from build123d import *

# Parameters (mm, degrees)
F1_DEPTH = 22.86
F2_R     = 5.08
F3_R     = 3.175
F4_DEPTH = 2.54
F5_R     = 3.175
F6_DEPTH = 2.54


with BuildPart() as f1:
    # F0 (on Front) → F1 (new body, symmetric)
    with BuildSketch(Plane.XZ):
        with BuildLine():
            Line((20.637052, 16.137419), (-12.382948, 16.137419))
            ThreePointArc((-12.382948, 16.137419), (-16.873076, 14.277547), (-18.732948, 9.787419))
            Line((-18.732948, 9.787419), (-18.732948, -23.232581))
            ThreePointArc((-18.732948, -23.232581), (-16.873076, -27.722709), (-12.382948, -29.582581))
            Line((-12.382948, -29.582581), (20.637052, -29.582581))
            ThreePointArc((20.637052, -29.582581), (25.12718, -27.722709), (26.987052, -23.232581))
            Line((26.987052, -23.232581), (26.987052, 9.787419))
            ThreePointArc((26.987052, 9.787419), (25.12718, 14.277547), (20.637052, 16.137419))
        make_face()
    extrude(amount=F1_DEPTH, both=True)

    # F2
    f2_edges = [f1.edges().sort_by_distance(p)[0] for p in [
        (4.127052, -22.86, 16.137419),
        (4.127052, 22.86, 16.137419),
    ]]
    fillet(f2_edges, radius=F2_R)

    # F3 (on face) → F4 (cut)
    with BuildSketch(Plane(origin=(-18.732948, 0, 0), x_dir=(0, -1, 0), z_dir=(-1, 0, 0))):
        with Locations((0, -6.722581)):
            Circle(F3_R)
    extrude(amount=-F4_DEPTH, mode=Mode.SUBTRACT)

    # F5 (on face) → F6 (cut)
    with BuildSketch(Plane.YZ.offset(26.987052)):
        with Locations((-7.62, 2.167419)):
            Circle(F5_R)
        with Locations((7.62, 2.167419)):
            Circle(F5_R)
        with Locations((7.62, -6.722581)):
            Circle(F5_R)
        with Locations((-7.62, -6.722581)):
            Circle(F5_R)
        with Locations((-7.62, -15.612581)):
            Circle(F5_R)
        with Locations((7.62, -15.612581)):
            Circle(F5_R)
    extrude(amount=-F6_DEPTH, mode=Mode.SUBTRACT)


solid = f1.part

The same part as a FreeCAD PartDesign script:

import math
import FreeCAD as App
import Part
import Sketcher
Q = App.Units.Quantity


def edges_at(feature, points):
    """Names of the edges that pass closest to the given points."""
    edges = feature.Shape.Edges
    near = lambda p: min(range(len(edges)), key=lambda i: edges[i].distToShape(Part.Vertex(*p))[0])
    return sorted({f"Edge{near(p) + 1}" for p in points})

doc = App.newDocument("Part")
body = doc.addObject("PartDesign::Body", "Body")

# Sketch on XZ plane
sketch1 = body.newObject("Sketcher::SketchObject", "Sketch")
sketch1.AttachmentSupport = (doc.getObject("XZ_Plane"), [""])
sketch1.MapMode = "FlatFace"
sketch1.addGeometry(Part.LineSegment(App.Vector(21, 16, 0), App.Vector(-12, 16, 0)), False)
sketch1.addGeometry(Part.ArcOfCircle(Part.Circle(App.Vector(-12, 10, 0), App.Vector(0, 0, 1), 6), math.radians(90), math.radians(180)), False)
sketch1.addGeometry(Part.LineSegment(App.Vector(-19, 10, 0), App.Vector(-19, -23, 0)), False)
sketch1.addGeometry(Part.ArcOfCircle(Part.Circle(App.Vector(-12, -23, 0), App.Vector(0, 0, 1), 6), math.radians(-180), math.radians(-90)), False)
sketch1.addGeometry(Part.LineSegment(App.Vector(-12, -30, 0), App.Vector(21, -30, 0)), False)
sketch1.addGeometry(Part.ArcOfCircle(Part.Circle(App.Vector(21, -23, 0), App.Vector(0, 0, 1), 6), math.radians(-90), math.radians(0)), False)
sketch1.addGeometry(Part.LineSegment(App.Vector(27, -23, 0), App.Vector(27, 10, 0)), False)
sketch1.addGeometry(Part.ArcOfCircle(Part.Circle(App.Vector(21, 10, 0), App.Vector(0, 0, 1), 6), math.radians(0), math.radians(90)), False)
sketch1.addConstraint(Sketcher.Constraint("Tangent", 0, 2, 1, 1))
sketch1.addConstraint(Sketcher.Constraint("Tangent", 1, 2, 2, 1))
sketch1.addConstraint(Sketcher.Constraint("Tangent", 2, 2, 3, 1))
sketch1.addConstraint(Sketcher.Constraint("Tangent", 3, 2, 4, 1))
sketch1.addConstraint(Sketcher.Constraint("Tangent", 4, 2, 5, 1))
sketch1.addConstraint(Sketcher.Constraint("Tangent", 5, 2, 6, 1))
sketch1.addConstraint(Sketcher.Constraint("Tangent", 6, 2, 7, 1))
sketch1.addConstraint(Sketcher.Constraint("Tangent", 7, 2, 0, 1))
sketch1.addConstraint(Sketcher.Constraint("Horizontal", 0))
sketch1.addConstraint(Sketcher.Constraint("Vertical", 2))
sketch1.addConstraint(Sketcher.Constraint("Horizontal", 4))
sketch1.addConstraint(Sketcher.Constraint("Vertical", 6))
sketch1.addConstraint(Sketcher.Constraint("Equal", 1, 3))
sketch1.addConstraint(Sketcher.Constraint("Equal", 3, 5))
sketch1.addConstraint(Sketcher.Constraint("Equal", 5, 7))
sketch1.addConstraint(Sketcher.Constraint("Equal", 4, 2))
sketch1.addConstraint(Sketcher.Constraint("Radius", 1, Q("0.25 in")))
sketch1.addConstraint(Sketcher.Constraint("DistanceX", 0, 2, 0, 1, Q("1.3 in")))
sketch1.addConstraint(Sketcher.Constraint("DistanceY", -1, 1, 1, 3, 9.787419))
sketch1.addConstraint(Sketcher.Constraint("DistanceX", -1, 1, 5, 3, 20.637052))
pad1 = body.newObject("PartDesign::Pad", "Pad")
pad1.Profile = sketch1
pad1.Length = Q("1.8 in")
pad1.Midplane = True
doc.recompute()

fillet = body.newObject("PartDesign::Fillet", "Fillet")
fillet.Base = (pad1, edges_at(pad1, [(4.127, -22.86, 16.137), (4.127, 22.86, 16.137)]))
fillet.Radius = Q("0.2 in")

# Sketch on YZ plane
sketch2 = body.newObject("Sketcher::SketchObject", "Sketch001")
sketch2.AttachmentSupport = (doc.getObject("YZ_Plane"), [""])
sketch2.MapMode = "FlatFace"
sketch2.AttachmentOffset = App.Placement(App.Vector(0, 0, -18.732948), App.Rotation())
sketch2.addGeometry(Part.Circle(App.Vector(0, -6.7, 0), App.Vector(0, 0, 1), 3.2), False)
sketch2.addConstraint(Sketcher.Constraint("PointOnObject", 0, 3, -2))
sketch2.addConstraint(Sketcher.Constraint("Diameter", 0, Q("0.25 in")))
sketch2.addConstraint(Sketcher.Constraint("DistanceY", 0, 3, -1, 1, 6.722581))
pocket1 = body.newObject("PartDesign::Pocket", "Pocket")
pocket1.Profile = sketch2
pocket1.Length = Q("0.1 in")
pocket1.Reversed = True

# Sketch on YZ plane
sketch3 = body.newObject("Sketcher::SketchObject", "Sketch002")
sketch3.AttachmentSupport = (doc.getObject("YZ_Plane"), [""])
sketch3.MapMode = "FlatFace"
sketch3.AttachmentOffset = App.Placement(App.Vector(0, 0, 26.987052), App.Rotation())
sketch3.addGeometry(Part.Circle(App.Vector(-7.6, 2.2, 0), App.Vector(0, 0, 1), 3.2), False)
sketch3.addGeometry(Part.Circle(App.Vector(7.6, 2.2, 0), App.Vector(0, 0, 1), 3.2), False)
sketch3.addGeometry(Part.Circle(App.Vector(7.6, -6.7, 0), App.Vector(0, 0, 1), 3.2), False)
sketch3.addGeometry(Part.Circle(App.Vector(-7.6, -6.7, 0), App.Vector(0, 0, 1), 3.2), False)
sketch3.addGeometry(Part.Circle(App.Vector(-7.6, -15.6, 0), App.Vector(0, 0, 1), 3.2), False)
sketch3.addGeometry(Part.Circle(App.Vector(7.6, -15.6, 0), App.Vector(0, 0, 1), 3.2), False)
sketch3.addConstraint(Sketcher.Constraint("Equal", 0, 1))
sketch3.addConstraint(Sketcher.Constraint("Equal", 1, 2))
sketch3.addConstraint(Sketcher.Constraint("Equal", 2, 3))
sketch3.addConstraint(Sketcher.Constraint("Equal", 3, 4))
sketch3.addConstraint(Sketcher.Constraint("Equal", 4, 5))
sketch3.addConstraint(Sketcher.Constraint("Symmetric", 0, 3, 1, 3, -2))
sketch3.addConstraint(Sketcher.Constraint("Symmetric", 2, 3, 3, 3, -2))
sketch3.addConstraint(Sketcher.Constraint("Symmetric", 4, 3, 5, 3, -2))
sketch3.addConstraint(Sketcher.Constraint("Vertical", 1, 3, 2, 3))
sketch3.addConstraint(Sketcher.Constraint("Vertical", 3, 3, 4, 3))
sketch3.addConstraint(Sketcher.Constraint("Diameter", 0, Q("0.25 in")))
sketch3.addConstraint(Sketcher.Constraint("DistanceX", 0, 3, -1, 1, Q("0.3 in")))
sketch3.addConstraint(Sketcher.Constraint("DistanceY", 4, 3, 0, 3, Q("0.7 in")))
sketch3.addConstraint(Sketcher.Constraint("DistanceY", 2, 3, 1, 3, Q("0.35 in")))
sketch3.addConstraint(Sketcher.Constraint("DistanceY", -1, 1, 0, 3, 2.167419))
pocket2 = body.newObject("PartDesign::Pocket", "Pocket001")
pocket2.Profile = sketch3
pocket2.Length = Q("0.1 in")

doc.recompute()
